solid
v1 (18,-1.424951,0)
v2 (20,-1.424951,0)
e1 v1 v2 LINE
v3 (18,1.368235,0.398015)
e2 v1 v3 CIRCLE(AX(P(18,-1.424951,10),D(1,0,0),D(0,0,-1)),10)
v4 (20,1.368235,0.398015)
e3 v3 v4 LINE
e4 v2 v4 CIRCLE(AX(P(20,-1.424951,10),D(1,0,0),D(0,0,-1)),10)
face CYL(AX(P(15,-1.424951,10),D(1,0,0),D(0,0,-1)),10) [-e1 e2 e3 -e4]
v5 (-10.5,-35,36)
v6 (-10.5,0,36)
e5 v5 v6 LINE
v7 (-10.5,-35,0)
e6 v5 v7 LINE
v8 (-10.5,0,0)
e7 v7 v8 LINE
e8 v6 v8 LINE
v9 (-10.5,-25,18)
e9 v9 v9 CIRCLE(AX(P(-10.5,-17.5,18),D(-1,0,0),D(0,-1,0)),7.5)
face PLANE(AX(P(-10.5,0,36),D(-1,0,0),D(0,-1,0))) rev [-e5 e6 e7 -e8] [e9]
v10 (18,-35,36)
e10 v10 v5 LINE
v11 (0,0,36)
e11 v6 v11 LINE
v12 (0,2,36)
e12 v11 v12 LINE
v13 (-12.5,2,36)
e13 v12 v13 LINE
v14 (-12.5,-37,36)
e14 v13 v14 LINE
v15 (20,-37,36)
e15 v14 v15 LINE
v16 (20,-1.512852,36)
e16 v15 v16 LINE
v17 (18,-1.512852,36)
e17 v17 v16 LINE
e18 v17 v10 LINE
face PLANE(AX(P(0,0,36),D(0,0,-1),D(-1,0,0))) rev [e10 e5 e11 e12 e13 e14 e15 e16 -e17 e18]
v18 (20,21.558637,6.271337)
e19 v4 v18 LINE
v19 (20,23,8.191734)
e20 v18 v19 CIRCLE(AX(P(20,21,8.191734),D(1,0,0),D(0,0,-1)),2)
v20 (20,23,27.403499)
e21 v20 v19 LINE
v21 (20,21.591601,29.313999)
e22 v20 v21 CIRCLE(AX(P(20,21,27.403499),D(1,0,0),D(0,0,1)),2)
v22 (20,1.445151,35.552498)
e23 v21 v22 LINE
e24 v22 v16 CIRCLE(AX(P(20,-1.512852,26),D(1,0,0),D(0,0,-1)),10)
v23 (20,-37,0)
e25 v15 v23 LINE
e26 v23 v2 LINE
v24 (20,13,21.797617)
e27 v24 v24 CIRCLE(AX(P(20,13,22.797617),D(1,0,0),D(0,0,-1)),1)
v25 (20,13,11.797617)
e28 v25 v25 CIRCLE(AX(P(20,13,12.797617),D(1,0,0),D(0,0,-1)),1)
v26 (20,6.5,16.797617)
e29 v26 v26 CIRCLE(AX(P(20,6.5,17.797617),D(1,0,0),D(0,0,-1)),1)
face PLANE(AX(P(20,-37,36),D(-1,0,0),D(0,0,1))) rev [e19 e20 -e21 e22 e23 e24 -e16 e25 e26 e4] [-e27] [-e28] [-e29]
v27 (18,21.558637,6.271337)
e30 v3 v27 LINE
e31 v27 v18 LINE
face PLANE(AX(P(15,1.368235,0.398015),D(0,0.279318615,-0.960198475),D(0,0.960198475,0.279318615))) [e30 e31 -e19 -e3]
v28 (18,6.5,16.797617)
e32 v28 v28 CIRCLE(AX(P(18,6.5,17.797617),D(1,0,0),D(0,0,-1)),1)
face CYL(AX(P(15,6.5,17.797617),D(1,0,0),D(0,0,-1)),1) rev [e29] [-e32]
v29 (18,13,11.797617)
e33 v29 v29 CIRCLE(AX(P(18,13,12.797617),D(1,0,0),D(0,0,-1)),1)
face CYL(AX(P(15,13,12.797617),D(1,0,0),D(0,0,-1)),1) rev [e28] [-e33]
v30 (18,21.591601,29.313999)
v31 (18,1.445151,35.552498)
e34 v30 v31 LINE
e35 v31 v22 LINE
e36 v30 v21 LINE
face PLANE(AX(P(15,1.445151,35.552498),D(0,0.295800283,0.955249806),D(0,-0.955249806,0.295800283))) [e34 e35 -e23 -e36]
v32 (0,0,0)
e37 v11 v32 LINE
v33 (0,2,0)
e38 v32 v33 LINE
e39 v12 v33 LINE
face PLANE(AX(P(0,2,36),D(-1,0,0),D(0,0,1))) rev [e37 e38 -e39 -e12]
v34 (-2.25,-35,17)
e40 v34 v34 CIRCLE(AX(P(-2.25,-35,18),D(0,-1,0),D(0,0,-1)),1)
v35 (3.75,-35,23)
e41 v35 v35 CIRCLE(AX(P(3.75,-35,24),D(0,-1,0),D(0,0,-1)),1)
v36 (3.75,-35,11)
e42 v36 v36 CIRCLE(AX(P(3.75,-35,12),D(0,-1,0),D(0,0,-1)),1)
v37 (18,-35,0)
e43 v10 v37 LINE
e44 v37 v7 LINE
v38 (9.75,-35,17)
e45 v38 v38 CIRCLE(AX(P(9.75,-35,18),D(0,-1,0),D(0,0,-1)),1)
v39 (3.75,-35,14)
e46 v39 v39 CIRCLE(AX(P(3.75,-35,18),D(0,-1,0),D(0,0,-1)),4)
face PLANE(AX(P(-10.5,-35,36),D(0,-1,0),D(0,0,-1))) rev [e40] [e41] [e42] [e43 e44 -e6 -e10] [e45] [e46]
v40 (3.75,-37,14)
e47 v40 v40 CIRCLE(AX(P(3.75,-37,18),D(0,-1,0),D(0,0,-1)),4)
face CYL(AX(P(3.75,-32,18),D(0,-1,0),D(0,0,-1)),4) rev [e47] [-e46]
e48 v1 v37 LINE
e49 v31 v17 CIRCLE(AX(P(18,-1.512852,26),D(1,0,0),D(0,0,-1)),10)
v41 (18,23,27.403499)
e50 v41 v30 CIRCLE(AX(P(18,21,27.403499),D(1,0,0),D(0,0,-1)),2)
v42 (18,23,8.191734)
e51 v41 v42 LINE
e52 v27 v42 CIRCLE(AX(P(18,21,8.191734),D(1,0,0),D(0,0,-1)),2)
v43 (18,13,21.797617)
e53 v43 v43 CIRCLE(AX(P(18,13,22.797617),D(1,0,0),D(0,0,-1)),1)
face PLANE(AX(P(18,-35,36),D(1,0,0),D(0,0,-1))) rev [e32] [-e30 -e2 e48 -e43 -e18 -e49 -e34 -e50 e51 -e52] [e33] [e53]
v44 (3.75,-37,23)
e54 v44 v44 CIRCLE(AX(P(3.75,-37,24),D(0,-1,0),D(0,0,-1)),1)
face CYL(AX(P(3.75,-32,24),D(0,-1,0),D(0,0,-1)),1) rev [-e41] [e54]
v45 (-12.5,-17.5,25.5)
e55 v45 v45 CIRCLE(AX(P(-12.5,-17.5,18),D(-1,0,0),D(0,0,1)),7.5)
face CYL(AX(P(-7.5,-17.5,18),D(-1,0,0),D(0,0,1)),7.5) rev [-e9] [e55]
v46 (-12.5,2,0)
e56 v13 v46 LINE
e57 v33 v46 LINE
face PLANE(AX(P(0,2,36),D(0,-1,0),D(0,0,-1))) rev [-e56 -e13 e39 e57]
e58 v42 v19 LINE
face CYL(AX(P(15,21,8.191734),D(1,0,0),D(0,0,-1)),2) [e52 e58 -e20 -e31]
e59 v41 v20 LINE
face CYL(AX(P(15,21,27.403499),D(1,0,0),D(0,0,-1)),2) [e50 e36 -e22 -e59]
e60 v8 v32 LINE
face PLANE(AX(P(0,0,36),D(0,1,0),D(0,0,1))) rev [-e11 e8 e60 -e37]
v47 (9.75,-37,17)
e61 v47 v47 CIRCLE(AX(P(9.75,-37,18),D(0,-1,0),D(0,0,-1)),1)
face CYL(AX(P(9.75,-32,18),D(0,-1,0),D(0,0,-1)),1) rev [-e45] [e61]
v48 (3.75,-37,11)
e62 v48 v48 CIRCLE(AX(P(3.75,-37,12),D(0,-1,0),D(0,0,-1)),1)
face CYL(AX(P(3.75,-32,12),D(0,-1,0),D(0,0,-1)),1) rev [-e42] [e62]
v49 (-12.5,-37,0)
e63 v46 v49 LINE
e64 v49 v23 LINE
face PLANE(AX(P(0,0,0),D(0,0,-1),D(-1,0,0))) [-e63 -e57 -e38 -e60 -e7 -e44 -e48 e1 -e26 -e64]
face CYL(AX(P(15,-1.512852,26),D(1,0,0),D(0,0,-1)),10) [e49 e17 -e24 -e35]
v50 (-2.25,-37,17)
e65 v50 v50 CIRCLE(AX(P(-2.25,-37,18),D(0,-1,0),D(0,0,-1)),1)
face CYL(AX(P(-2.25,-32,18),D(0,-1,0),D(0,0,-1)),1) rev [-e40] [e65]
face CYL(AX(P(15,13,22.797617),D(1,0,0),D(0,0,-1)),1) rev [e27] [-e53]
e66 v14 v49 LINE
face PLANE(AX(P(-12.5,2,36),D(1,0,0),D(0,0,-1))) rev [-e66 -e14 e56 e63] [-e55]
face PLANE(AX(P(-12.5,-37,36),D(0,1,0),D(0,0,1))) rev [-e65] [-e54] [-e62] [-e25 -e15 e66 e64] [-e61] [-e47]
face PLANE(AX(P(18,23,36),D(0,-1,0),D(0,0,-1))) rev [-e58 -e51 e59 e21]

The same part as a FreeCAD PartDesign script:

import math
import FreeCAD as App
import Part
import Sketcher

V = App.Vector
Q = App.Units.Quantity


def add_polygon(sketch, points):
    """Adds a closed chain of lines whose ends are joined by coincident constraints."""
    first, n = sketch.GeometryCount, len(points)
    for a, b in zip(points, points[1:] + points[:1]):
        sketch.addGeometry(Part.LineSegment(App.Vector(*a, 0), App.Vector(*b, 0)), False)
    for i in range(n):
        sketch.addConstraint(Sketcher.Constraint("Coincident", first + i, 2, first + (i + 1) % n, 1))

doc = App.newDocument("Part")
body = doc.addObject("PartDesign::Body", "Body")

# Sketch on XY plane
sketch1 = body.newObject("Sketcher::SketchObject", "Sketch")
sketch1.AttachmentSupport = (doc.getObject("XY_Plane"), [""])
sketch1.MapMode = "FlatFace"
add_polygon(sketch1, [(-10.5, 0), (0, 0), (0, 2), (-12.5, 2), (-12.5, -37), (20, -37), (20, 23), (18, 23), (18, -35), (-10.5, -35)])  # lines 0-9
sketch1.addConstraint(Sketcher.Constraint("Horizontal", 0))
sketch1.addConstraint(Sketcher.Constraint("Vertical", 1))
sketch1.addConstraint(Sketcher.Constraint("Horizontal", 2))
sketch1.addConstraint(Sketcher.Constraint("Vertical", 3))
sketch1.addConstraint(Sketcher.Constraint("Horizontal", 4))
sketch1.addConstraint(Sketcher.Constraint("Vertical", 5))
sketch1.addConstraint(Sketcher.Constraint("Horizontal", 6))
sketch1.addConstraint(Sketcher.Constraint("Vertical", 7))
sketch1.addConstraint(Sketcher.Constraint("Horizontal", 8))
sketch1.addConstraint(Sketcher.Constraint("Vertical", 9))
sketch1.addConstraint(Sketcher.Constraint("Coincident", 0, 2, -1, 1))
sketch1.addConstraint(Sketcher.Constraint("Equal", 6, 1))
sketch1.addConstraint(Sketcher.Constraint("DistanceX", 6, 2, 6, 1, Q("2 mm")))
sketch1.addConstraint(Sketcher.Constraint("DistanceY", 3, 2, 3, 1, Q("39 mm")))
sketch1.addConstraint(Sketcher.Constraint("DistanceY", 5, 1, 5, 2, Q("60 mm")))
sketch1.addConstraint(Sketcher.Constraint("DistanceY", 7, 2, 7, 1, Q("58 mm")))
sketch1.addConstraint(Sketcher.Constraint("DistanceX", 0, 1, 0, 2, Q("10.5 mm")))
sketch1.addConstraint(Sketcher.Constraint("DistanceX", 2, 2, 2, 1, Q("12.5 mm")))
sketch1.addConstraint(Sketcher.Constraint("DistanceX", 4, 1, 4, 2, Q("32.5 mm")))
pad1 = body.newObject("PartDesign::Pad", "Pad")
pad1.Profile = sketch1
pad1.Length = 36

# Sketch on YZ plane
sketch2 = body.newObject("Sketcher::SketchObject", "Sketch001")
sketch2.AttachmentSupport = (doc.getObject("YZ_Plane"), [""])
sketch2.MapMode = "FlatFace"
sketch2.AttachmentOffset = App.Placement(V(0, 0, 20), App.Rotation())
add_polygon(sketch2, [(31.7, 44.7), (-45.7, 44.7), (-45.7, -8.7), (31.7, -8.7)])  # lines 0-3
sketch2.addGeometry(Part.ArcOfCircle(Part.Circle(V(21, 27.4, 0), V(0, 0, 1), 2), math.radians(0), math.radians(73)), False)  # 4
sketch2.addGeometry(Part.LineSegment(V(23, 27.4, 0), V(23, 8.2, 0)), False)  # 5
sketch2.addGeometry(Part.ArcOfCircle(Part.Circle(V(21, 8.2, 0), V(0, 0, 1), 2), math.radians(-74), math.radians(0)), False)  # 6
sketch2.addGeometry(Part.LineSegment(V(21.6, 6.3, 0), V(1.4, 0.4, 0)), False)  # 7
sketch2.addGeometry(Part.ArcOfCircle(Part.Circle(V(-1.4, 10, 0), V(0, 0, 1), 10), math.radians(-90), math.radians(-73.78)), False)  # 8
sketch2.addGeometry(Part.LineSegment(V(-1.4, 0, 0), V(-37, 0, 0)), False)  # 9
sketch2.addGeometry(Part.LineSegment(V(-37, 0, 0), V(-37, 36, 0)), False)  # 10
sketch2.addGeometry(Part.LineSegment(V(-37, 36, 0), V(-1.5, 36, 0)), False)  # 11
sketch2.addGeometry(Part.ArcOfCircle(Part.Circle(V(-1.5, 26, 0), V(0, 0, 1), 10), math.radians(72.79), math.radians(90)), False)  # 12
sketch2.addGeometry(Part.LineSegment(V(1.4, 35.6, 0), V(21.6, 29.3, 0)), False)  # 13
sketch2.addGeometry(Part.Circle(V(6.5, 17.8, 0), V(0, 0, 1), 1), False)  # 14
sketch2.addGeometry(Part.Circle(V(13, 22.8, 0), V(0, 0, 1), 1), False)  # 15
sketch2.addGeometry(Part.Circle(V(13, 12.8, 0), V(0, 0, 1), 1), False)  # 16
sketch2.addConstraint(Sketcher.Constraint("Tangent", 4, 1, 5, 1))
sketch2.addConstraint(Sketcher.Constraint("Tangent", 5, 2, 6, 2))
sketch2.addConstraint(Sketcher.Constraint("Tangent", 6, 1, 7, 1))
sketch2.addConstraint(Sketcher.Constraint("Tangent", 7, 2, 8, 2))
sketch2.addConstraint(Sketcher.Constraint("Tangent", 8, 1, 9, 1))
sketch2.addConstraint(Sketcher.Constraint("Coincident", 9, 2, 10, 1))
sketch2.addConstraint(Sketcher.Constraint("Coincident", 10, 2, 11, 1))
sketch2.addConstraint(Sketcher.Constraint("Tangent", 11, 2, 12, 2))
sketch2.addConstraint(Sketcher.Constraint("Tangent", 12, 1, 13, 1))
sketch2.addConstraint(Sketcher.Constraint("Tangent", 13, 2, 4, 2))
sketch2.addConstraint(Sketcher.Constraint("Horizontal", 0))
sketch2.addConstraint(Sketcher.Constraint("Vertical", 1))
sketch2.addConstraint(Sketcher.Constraint("Horizontal", 2))
sketch2.addConstraint(Sketcher.Constraint("Vertical", 3))
sketch2.addConstraint(Sketcher.Constraint("Vertical", 5))
sketch2.addConstraint(Sketcher.Constraint("Horizontal", 9))
sketch2.addConstraint(Sketcher.Constraint("Vertical", 10))
sketch2.addConstraint(Sketcher.Constraint("Horizontal", 11))
sketch2.addConstraint(Sketcher.Constraint("Equal", 4, 6))
sketch2.addConstraint(Sketcher.Constraint("Equal", 8, 12))
sketch2.addConstraint(Sketcher.Constraint("Equal", 14, 15))
sketch2.addConstraint(Sketcher.Constraint("Equal", 15, 16))
sketch2.addConstraint(Sketcher.Constraint("PointOnObject", 8, 1, -1))
sketch2.addConstraint(Sketcher.Constraint("Vertical", 15, 3, 16, 3))
sketch2.addConstraint(Sketcher.Constraint("Diameter", 14, Q("2 mm")))
sketch2.addConstraint(Sketcher.Constraint("Radius", 4, Q("2 mm")))
sketch2.addConstraint(Sketcher.Constraint("Radius", 8, Q("10 mm")))
sketch2.addConstraint(Sketcher.Constraint("DistanceY", 10, 1, 10, 2, Q("36 mm")))
sketch2.addConstraint(Sketcher.Constraint("DistanceX", -1, 1, 4, 3, Q("21 mm")))
sketch2.addConstraint(Sketcher.Constraint("DistanceX", -1, 1, 15, 3, Q("13 mm")))
sketch2.addConstraint(Sketcher.Constraint("DistanceX", 9, 2, -1, 1, Q("37 mm")))
sketch2.addConstraint(Sketcher.Constraint("DistanceY", 14, 3, 15, 3, Q("5 mm")))
sketch2.addConstraint(Sketcher.Constraint("DistanceY", 16, 3, 14, 3, Q("5 mm")))
sketch2.addConstraint(Sketcher.Constraint("DistanceX", 0, 2, 0, 1, Q("77.43 mm")))
sketch2.addConstraint(Sketcher.Constraint("DistanceY", 1, 2, 1, 1, Q("53.43 mm")))
sketch2.addConstraint(Sketcher.Constraint("DistanceX", -1, 1, 14, 3, Q("6.5 mm")))
sketch2.addConstraint(Sketcher.Constraint("DistanceX", 0, 2, -1, 1, Q("45.715 mm")))
sketch2.addConstraint(Sketcher.Constraint("DistanceY", -1, 1, 0, 2, Q("44.715 mm")))
sketch2.addConstraint(Sketcher.Constraint("DistanceY", -1, 1, 13, 2, Q("29.313999 mm")))
sketch2.addConstraint(Sketcher.Constraint("DistanceY", 4, 3, 12, 1, Q("8.148999 mm")))
sketch2.addConstraint(Sketcher.Constraint("DistanceX", 9, 2, 9, 1, Q("35.575049 mm")))
sketch2.addConstraint(Sketcher.Constraint("DistanceY", 7, 2, 16, 3, Q("12.399601 mm")))
sketch2.addConstraint(Sketcher.Constraint("DistanceX", 7, 2, 6, 1, Q("20.190402 mm")))
pocket1 = body.newObject("PartDesign::Pocket", "Pocket")
pocket1.Profile = sketch2
pocket1.Length = 5

# Sketch on YZ plane
sketch3 = body.newObject("Sketcher::SketchObject", "Sketch002")
sketch3.AttachmentSupport = (doc.getObject("YZ_Plane"), [""])
sketch3.MapMode = "FlatFace"
sketch3.AttachmentOffset = App.Placement(V(0, 0, -12.5), App.Rotation())
sketch3.addGeometry(Part.Circle(V(-18, 18, 0), V(0, 0, 1), 8), False)
sketch3.addConstraint(Sketcher.Constraint("Diameter", 0, Q("15 mm")))
sketch3.addConstraint(Sketcher.Constraint("DistanceY", -1, 1, 0, 3, Q("18 mm")))
sketch3.addConstraint(Sketcher.Constraint("DistanceX", 0, 3, -1, 1, Q("17.5 mm")))
pocket2 = body.newObject("PartDesign::Pocket", "Pocket001")
pocket2.Profile = sketch3
pocket2.Length = 5
pocket2.Reversed = True

# Sketch on XZ plane
sketch4 = body.newObject("Sketcher::SketchObject", "Sketch003")
sketch4.AttachmentSupport = (doc.getObject("XZ_Plane"), [""])
sketch4.MapMode = "FlatFace"
sketch4.AttachmentOffset = App.Placement(V(0, 0, 37), App.Rotation())
sketch4.addGeometry(Part.Circle(V(3.8, 18, 0), V(0, 0, 1), 4), False)
sketch4.addGeometry(Part.Circle(V(3.8, 12, 0), V(0, 0, 1), 1), False)
sketch4.addGeometry(Part.Circle(V(3.8, 24, 0), V(0, 0, 1), 1), False)
sketch4.addGeometry(Part.Circle(V(9.8, 18, 0), V(0, 0, 1), 1), False)
sketch4.addGeometry(Part.Circle(V(-2.2, 18, 0), V(0, 0, 1), 1), False)
sketch4.addConstraint(Sketcher.Constraint("Equal", 1, 2))
sketch4.addConstraint(Sketcher.Constraint("Equal", 2, 3))
sketch4.addConstraint(Sketcher.Constraint("Equal", 3, 4))
sketch4.addConstraint(Sketcher.Constraint("Horizontal", 0, 3, 3, 3))
sketch4.addConstraint(Sketcher.Constraint("Horizontal", 3, 3, 4, 3))
sketch4.addConstraint(Sketcher.Constraint("Vertical", 0, 3, 1, 3))
sketch4.addConstraint(Sketcher.Constraint("Vertical", 1, 3, 2, 3))
sketch4.addConstraint(Sketcher.Constraint("Diameter", 0, Q("8 mm")))
sketch4.addConstraint(Sketcher.Constraint("Diameter", 1, Q("2 mm")))
sketch4.addConstraint(Sketcher.Constraint("DistanceY", -1, 1, 0, 3, Q("18 mm")))
sketch4.addConstraint(Sketcher.Constraint("DistanceY", -1, 1, 1, 3, Q("12 mm")))
sketch4.addConstraint(Sketcher.Constraint("DistanceY", -1, 1, 2, 3, Q("24 mm")))
sketch4.addConstraint(Sketcher.Constraint("DistanceX", 0, 3, 3, 3, Q("6 mm")))
sketch4.addConstraint(Sketcher.Constraint("DistanceX", 4, 3, 0, 3, Q("6 mm")))
sketch4.addConstraint(Sketcher.Constraint("DistanceX", -1, 1, 0, 3, Q("3.75 mm")))
pocket3 = body.newObject("PartDesign::Pocket", "Pocket002")
pocket3.Profile = sketch4
pocket3.Length = 5

doc.recompute()
